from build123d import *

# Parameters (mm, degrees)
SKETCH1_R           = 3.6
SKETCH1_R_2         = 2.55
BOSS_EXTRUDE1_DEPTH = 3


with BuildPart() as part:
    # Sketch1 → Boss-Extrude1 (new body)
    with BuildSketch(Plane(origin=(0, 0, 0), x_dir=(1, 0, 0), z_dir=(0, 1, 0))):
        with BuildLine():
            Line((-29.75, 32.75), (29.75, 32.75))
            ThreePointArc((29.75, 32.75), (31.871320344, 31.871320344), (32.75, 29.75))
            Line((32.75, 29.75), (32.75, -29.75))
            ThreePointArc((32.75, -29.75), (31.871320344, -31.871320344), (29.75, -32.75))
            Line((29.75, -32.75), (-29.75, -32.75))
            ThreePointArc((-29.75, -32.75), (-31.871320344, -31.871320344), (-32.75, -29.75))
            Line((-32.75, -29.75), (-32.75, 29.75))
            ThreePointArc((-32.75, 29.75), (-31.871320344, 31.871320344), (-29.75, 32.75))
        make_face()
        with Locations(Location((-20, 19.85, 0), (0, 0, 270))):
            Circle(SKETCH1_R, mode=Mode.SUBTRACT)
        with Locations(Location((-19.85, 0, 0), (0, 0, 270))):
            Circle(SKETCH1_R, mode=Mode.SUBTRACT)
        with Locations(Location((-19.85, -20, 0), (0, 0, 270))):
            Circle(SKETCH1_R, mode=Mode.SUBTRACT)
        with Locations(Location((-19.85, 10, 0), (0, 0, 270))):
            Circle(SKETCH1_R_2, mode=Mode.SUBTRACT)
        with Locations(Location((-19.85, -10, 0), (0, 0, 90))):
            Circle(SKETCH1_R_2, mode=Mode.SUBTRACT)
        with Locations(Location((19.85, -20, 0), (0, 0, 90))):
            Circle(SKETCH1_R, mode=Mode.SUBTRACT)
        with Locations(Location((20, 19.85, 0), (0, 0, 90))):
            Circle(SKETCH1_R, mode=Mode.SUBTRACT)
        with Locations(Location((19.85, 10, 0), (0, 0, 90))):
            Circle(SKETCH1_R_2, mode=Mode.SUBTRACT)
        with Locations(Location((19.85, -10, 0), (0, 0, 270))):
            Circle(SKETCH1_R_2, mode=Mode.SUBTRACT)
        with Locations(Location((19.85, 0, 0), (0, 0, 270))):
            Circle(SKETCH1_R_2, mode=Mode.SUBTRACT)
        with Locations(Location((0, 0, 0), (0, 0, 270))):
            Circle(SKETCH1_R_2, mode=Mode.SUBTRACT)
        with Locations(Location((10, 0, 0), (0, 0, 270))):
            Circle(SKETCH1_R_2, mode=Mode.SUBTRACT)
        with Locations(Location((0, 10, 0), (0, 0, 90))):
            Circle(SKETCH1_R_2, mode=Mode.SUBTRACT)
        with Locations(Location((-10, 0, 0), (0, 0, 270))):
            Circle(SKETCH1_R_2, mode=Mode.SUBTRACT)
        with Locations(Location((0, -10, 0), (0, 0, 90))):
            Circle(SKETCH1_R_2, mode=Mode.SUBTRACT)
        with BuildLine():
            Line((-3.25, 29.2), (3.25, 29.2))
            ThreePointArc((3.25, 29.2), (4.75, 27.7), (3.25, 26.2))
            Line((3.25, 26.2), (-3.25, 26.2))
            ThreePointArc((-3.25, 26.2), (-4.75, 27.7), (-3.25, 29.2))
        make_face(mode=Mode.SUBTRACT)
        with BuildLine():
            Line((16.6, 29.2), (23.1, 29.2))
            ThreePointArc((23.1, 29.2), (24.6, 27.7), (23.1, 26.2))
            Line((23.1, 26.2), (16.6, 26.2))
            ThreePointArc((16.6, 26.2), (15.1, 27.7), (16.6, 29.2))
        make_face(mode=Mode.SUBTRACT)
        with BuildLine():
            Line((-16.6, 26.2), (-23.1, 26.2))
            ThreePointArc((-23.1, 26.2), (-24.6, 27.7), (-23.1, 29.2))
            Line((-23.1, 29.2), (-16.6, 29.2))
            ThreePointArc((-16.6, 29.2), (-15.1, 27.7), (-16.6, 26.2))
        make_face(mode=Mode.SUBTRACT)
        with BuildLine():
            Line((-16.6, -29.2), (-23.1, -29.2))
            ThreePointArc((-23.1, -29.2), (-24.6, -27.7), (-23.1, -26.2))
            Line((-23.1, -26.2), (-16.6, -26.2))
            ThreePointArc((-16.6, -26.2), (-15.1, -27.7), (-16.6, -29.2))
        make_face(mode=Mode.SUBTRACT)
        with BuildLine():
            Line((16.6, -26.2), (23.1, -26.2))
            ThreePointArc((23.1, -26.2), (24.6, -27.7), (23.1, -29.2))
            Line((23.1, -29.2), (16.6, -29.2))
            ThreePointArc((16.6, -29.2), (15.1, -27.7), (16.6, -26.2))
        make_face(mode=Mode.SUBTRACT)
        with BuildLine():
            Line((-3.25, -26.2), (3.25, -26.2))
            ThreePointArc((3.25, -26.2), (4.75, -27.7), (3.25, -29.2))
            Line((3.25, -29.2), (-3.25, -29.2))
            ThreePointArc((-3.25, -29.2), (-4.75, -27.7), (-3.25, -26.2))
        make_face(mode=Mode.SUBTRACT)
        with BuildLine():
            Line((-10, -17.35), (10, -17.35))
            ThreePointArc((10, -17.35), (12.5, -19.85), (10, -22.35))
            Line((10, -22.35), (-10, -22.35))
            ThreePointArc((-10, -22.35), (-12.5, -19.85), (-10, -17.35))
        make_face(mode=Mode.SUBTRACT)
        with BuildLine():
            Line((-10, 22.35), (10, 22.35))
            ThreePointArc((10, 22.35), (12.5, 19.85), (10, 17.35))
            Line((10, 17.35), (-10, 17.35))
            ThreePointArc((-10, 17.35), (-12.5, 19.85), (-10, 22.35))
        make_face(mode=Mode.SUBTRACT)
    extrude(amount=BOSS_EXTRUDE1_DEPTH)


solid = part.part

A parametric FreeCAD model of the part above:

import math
import FreeCAD as App
import Part
import Sketcher

V = App.Vector
Q = App.Units.Quantity

doc = App.newDocument("Part")
body = doc.addObject("PartDesign::Body", "Body")

# Sketch on XZ plane
sketch1 = doc.addObject("Sketcher::SketchObject", "Sketch")
body.addObject(sketch1)
sketch1.AttachmentSupport = (doc.XZ_Plane, [""])
sketch1.MapMode = "FlatFace"
sketch1.addGeometry([
    Part.LineSegment(V(29.8, -32.8, 0), V(-29.8, -32.8, 0)),  # 0
    Part.ArcOfCircle(Part.Circle(V(-29.8, -29.8, 0), V(0, 0, 1), 3), math.radians(180), math.radians(270)),  # 1
    Part.LineSegment(V(-32.8, -29.8, 0), V(-32.8, 29.8, 0)),  # 2
    Part.ArcOfCircle(Part.Circle(V(-29.8, 29.8, 0), V(0, 0, 1), 3), math.radians(90), math.radians(180)),  # 3
    Part.LineSegment(V(-29.8, 32.8, 0), V(29.8, 32.8, 0)),  # 4
    Part.ArcOfCircle(Part.Circle(V(29.8, 29.8, 0), V(0, 0, 1), 3), math.radians(0), math.radians(90)),  # 5
    Part.LineSegment(V(32.8, 29.8, 0), V(32.8, -29.8, 0)),  # 6
    Part.ArcOfCircle(Part.Circle(V(29.8, -29.8, 0), V(0, 0, 1), 3), math.radians(-90), math.radians(0)),  # 7
    Part.LineSegment(V(16.6, 26.2, 0), V(23.1, 26.2, 0)),  # 8
    Part.ArcOfCircle(Part.Circle(V(23.1, 27.7, 0), V(0, 0, 1), 1.5), math.radians(-90), math.radians(90)),  # 9
    Part.LineSegment(V(23.1, 29.2, 0), V(16.6, 29.2, 0)),  # 10
    Part.ArcOfCircle(Part.Circle(V(16.6, 27.7, 0), V(0, 0, 1), 1.5), math.radians(90), math.radians(270)),  # 11
    Part.Circle(V(19.9, 20, 0), V(0, 0, 1), 3.6),  # 12
    Part.Circle(V(19.9, 10, 0), V(0, 0, 1), 2.5),  # 13
    Part.Circle(V(19.9, 0, 0), V(0, 0, 1), 2.5),  # 14
    Part.Circle(V(10, 0, 0), V(0, 0, 1), 2.5),  # 15
    Part.LineSegment(V(-3.2, 26.2, 0), V(3.2, 26.2, 0)),  # 16
    Part.ArcOfCircle(Part.Circle(V(3.2, 27.7, 0), V(0, 0, 1), 1.5), math.radians(-90), math.radians(90)),  # 17
    Part.LineSegment(V(3.2, 29.2, 0), V(-3.2, 29.2, 0)),  # 18
    Part.ArcOfCircle(Part.Circle(V(-3.2, 27.7, 0), V(0, 0, 1), 1.5), math.radians(90), math.radians(270)),  # 19
    Part.LineSegment(V(-10, 17.4, 0), V(10, 17.4, 0)),  # 20
    Part.ArcOfCircle(Part.Circle(V(10, 19.9, 0), V(0, 0, 1), 2.5), math.radians(-90), math.radians(90)),  # 21
    Part.LineSegment(V(10, 22.4, 0), V(-10, 22.4, 0)),  # 22
    Part.ArcOfCircle(Part.Circle(V(-10, 19.9, 0), V(0, 0, 1), 2.5), math.radians(90), math.radians(270)),  # 23
    Part.LineSegment(V(-16.6, 29.2, 0), V(-23.1, 29.2, 0)),  # 24
    Part.ArcOfCircle(Part.Circle(V(-23.1, 27.7, 0), V(0, 0, 1), 1.5), math.radians(90), math.radians(270)),  # 25
    Part.LineSegment(V(-23.1, 26.2, 0), V(-16.6, 26.2, 0)),  # 26
    Part.ArcOfCircle(Part.Circle(V(-16.6, 27.7, 0), V(0, 0, 1), 1.5), math.radians(-90), math.radians(90)),  # 27
    Part.Circle(V(-19.9, 20, 0), V(0, 0, 1), 3.6),  # 28
    Part.Circle(V(0, 10, 0), V(0, 0, 1), 2.5),  # 29
    Part.Circle(V(0, 0, 0), V(0, 0, 1), 2.5),  # 30
    Part.Circle(V(-10, 0, 0), V(0, 0, 1), 2.5),  # 31
    Part.Circle(V(-19.9, 10, 0), V(0, 0, 1), 2.5),  # 32
    Part.Circle(V(-19.9, 0, 0), V(0, 0, 1), 3.6),  # 33
    Part.Circle(V(19.9, -10, 0), V(0, 0, 1), 2.5),  # 34
    Part.Circle(V(20, -19.9, 0), V(0, 0, 1), 3.6),  # 35
    Part.LineSegment(V(16.6, -29.2, 0), V(23.1, -29.2, 0)),  # 36
    Part.ArcOfCircle(Part.Circle(V(23.1, -27.7, 0), V(0, 0, 1), 1.5), math.radians(-90), math.radians(90)),  # 37
    Part.LineSegment(V(23.1, -26.2, 0), V(16.6, -26.2, 0)),  # 38
    Part.ArcOfCircle(Part.Circle(V(16.6, -27.7, 0), V(0, 0, 1), 1.5), math.radians(90), math.radians(270)),  # 39
    Part.Circle(V(0, -10, 0), V(0, 0, 1), 2.5),  # 40
    Part.Circle(V(-19.9, -10, 0), V(0, 0, 1), 2.5),  # 41
    Part.LineSegment(V(-10, -22.4, 0), V(10, -22.4, 0)),  # 42
    Part.ArcOfCircle(Part.Circle(V(10, -19.9, 0), V(0, 0, 1), 2.5), math.radians(-90), math.radians(90)),  # 43
    Part.LineSegment(V(10, -17.4, 0), V(-10, -17.4, 0)),  # 44
    Part.ArcOfCircle(Part.Circle(V(-10, -19.9, 0), V(0, 0, 1), 2.5), math.radians(90), math.radians(270)),  # 45
    Part.LineSegment(V(-3.2, -29.2, 0), V(3.2, -29.2, 0)),  # 46
    Part.ArcOfCircle(Part.Circle(V(3.2, -27.7, 0), V(0, 0, 1), 1.5), math.radians(-90), math.radians(90)),  # 47
    Part.LineSegment(V(3.2, -26.2, 0), V(-3.2, -26.2, 0)),  # 48
    Part.ArcOfCircle(Part.Circle(V(-3.2, -27.7, 0), V(0, 0, 1), 1.5), math.radians(90), math.radians(270)),  # 49
    Part.Circle(V(-20, -19.9, 0), V(0, 0, 1), 3.6),  # 50
    Part.LineSegment(V(-16.6, -26.2, 0), V(-23.1, -26.2, 0)),  # 51
    Part.ArcOfCircle(Part.Circle(V(-23.1, -27.7, 0), V(0, 0, 1), 1.5), math.radians(90), math.radians(270)),  # 52
    Part.LineSegment(V(-23.1, -29.2, 0), V(-16.6, -29.2, 0)),  # 53
    Part.ArcOfCircle(Part.Circle(V(-16.6, -27.7, 0), V(0, 0, 1), 1.5), math.radians(-90), math.radians(90)),  # 54
], False)
sketch1.addConstraint([
    Sketcher.Constraint("Tangent", 0, 2, 1, 2),
    Sketcher.Constraint("Tangent", 1, 1, 2, 1),
    Sketcher.Constraint("Tangent", 2, 2, 3, 2),
    Sketcher.Constraint("Tangent", 3, 1, 4, 1),
    Sketcher.Constraint("Tangent", 4, 2, 5, 2),
    Sketcher.Constraint("Tangent", 5, 1, 6, 1),
    Sketcher.Constraint("Tangent", 6, 2, 7, 2),
    Sketcher.Constraint("Tangent", 7, 1, 0, 1),
    Sketcher.Constraint("Tangent", 8, 2, 9, 1),
    Sketcher.Constraint("Tangent", 9, 2, 10, 1),
    Sketcher.Constraint("Tangent", 10, 2, 11, 1),
    Sketcher.Constraint("Tangent", 11, 2, 8, 1),
    Sketcher.Constraint("Tangent", 16, 2, 17, 1),
    Sketcher.Constraint("Tangent", 17, 2, 18, 1),
    Sketcher.Constraint("Tangent", 18, 2, 19, 1),
    Sketcher.Constraint("Tangent", 19, 2, 16, 1),
    Sketcher.Constraint("Tangent", 20, 2, 21, 1),
    Sketcher.Constraint("Tangent", 21, 2, 22, 1),
    Sketcher.Constraint("Tangent", 22, 2, 23, 1),
    Sketcher.Constraint("Tangent", 23, 2, 20, 1),
    Sketcher.Constraint("Tangent", 24, 2, 25, 1),
    Sketcher.Constraint("Tangent", 25, 2, 26, 1),
    Sketcher.Constraint("Tangent", 26, 2, 27, 1),
    Sketcher.Constraint("Tangent", 27, 2, 24, 1),
    Sketcher.Constraint("Tangent", 36, 2, 37, 1),
    Sketcher.Constraint("Tangent", 37, 2, 38, 1),
    Sketcher.Constraint("Tangent", 38, 2, 39, 1),
    Sketcher.Constraint("Tangent", 39, 2, 36, 1),
    Sketcher.Constraint("Tangent", 42, 2, 43, 1),
    Sketcher.Constraint("Tangent", 43, 2, 44, 1),
    Sketcher.Constraint("Tangent", 44, 2, 45, 1),
    Sketcher.Constraint("Tangent", 45, 2, 42, 1),
    Sketcher.Constraint("Tangent", 46, 2, 47, 1),
    Sketcher.Constraint("Tangent", 47, 2, 48, 1),
    Sketcher.Constraint("Tangent", 48, 2, 49, 1),
    Sketcher.Constraint("Tangent", 49, 2, 46, 1),
    Sketcher.Constraint("Tangent", 51, 2, 52, 1),
    Sketcher.Constraint("Tangent", 52, 2, 53, 1),
    Sketcher.Constraint("Tangent", 53, 2, 54, 1),
    Sketcher.Constraint("Tangent", 54, 2, 51, 1),
    Sketcher.Constraint("Horizontal", 0),
    Sketcher.Constraint("Vertical", 2),
    Sketcher.Constraint("Horizontal", 4),
    Sketcher.Constraint("Vertical", 6),
    Sketcher.Constraint("Horizontal", 8),
    Sketcher.Constraint("Horizontal", 10),
    Sketcher.Constraint("Horizontal", 16),
    Sketcher.Constraint("Horizontal", 18),
    Sketcher.Constraint("Horizontal", 20),
    Sketcher.Constraint("Horizontal", 22),
    Sketcher.Constraint("Horizontal", 24),
    Sketcher.Constraint("Horizontal", 26),
    Sketcher.Constraint("Horizontal", 36),
    Sketcher.Constraint("Horizontal", 38),
    Sketcher.Constraint("Horizontal", 42),
    Sketcher.Constraint("Horizontal", 44),
    Sketcher.Constraint("Horizontal", 46),
    Sketcher.Constraint("Horizontal", 48),
    Sketcher.Constraint("Horizontal", 51),
    Sketcher.Constraint("Horizontal", 53),
    Sketcher.Constraint("Coincident", 30, 3, -1, 1),
    Sketcher.Constraint("Equal", 1, 3),
    Sketcher.Constraint("Equal", 3, 5),
    Sketcher.Constraint("Equal", 5, 7),
    Sketcher.Constraint("Equal", 13, 14),
    Sketcher.Constraint("Equal", 14, 15),
    Sketcher.Constraint("Equal", 11, 17),
    Sketcher.Constraint("Equal", 19, 25),
    Sketcher.Constraint("Equal", 12, 28),
    Sketcher.Constraint("Equal", 15, 29),
    Sketcher.Constraint("Equal", 29, 30),
    Sketcher.Constraint("Equal", 30, 31),
    Sketcher.Constraint("Equal", 31, 32),
    Sketcher.Constraint("Equal", 28, 33),
    Sketcher.Constraint("Equal", 32, 34),
    Sketcher.Constraint("Equal", 33, 35),
    Sketcher.Constraint("Equal", 27, 37),
    Sketcher.Constraint("Equal", 34, 40),
    Sketcher.Constraint("Equal", 40, 41),
    Sketcher.Constraint("Equal", 23, 43),
    Sketcher.Constraint("Equal", 39, 47),
    Sketcher.Constraint("Equal", 35, 50),
    Sketcher.Constraint("Equal", 49, 52),
    Sketcher.Constraint("Symmetric", 1, 3, 5, 3, -1, 1),
    Sketcher.Constraint("Symmetric", 15, 3, 31, 3, -1, 1),
    Sketcher.Constraint("Symmetric", 14, 3, 33, 3, -1, 1),
    Sketcher.Constraint("Symmetric", 32, 3, 34, 3, -1, 1),
    Sketcher.Constraint("Symmetric", 25, 3, 37, 3, -1, 1),
    Sketcher.Constraint("Symmetric", 29, 3, 40, 3, -1, 1),
    Sketcher.Constraint("Symmetric", 13, 3, 41, 3, -1, 1),
    Sketcher.Constraint("Symmetric", 23, 3, 43, 3, -1, 1),
    Sketcher.Constraint("Symmetric", 19, 3, 47, 3, -1, 1),
    Sketcher.Constraint("Symmetric", 9, 3, 52, 3, -1, 1),
    Sketcher.Constraint("Symmetric", 9, 3, 25, 3, -2),
    Sketcher.Constraint("Symmetric", 12, 3, 28, 3, -2),
    Sketcher.Constraint("Symmetric", 13, 3, 32, 3, -2),
    Sketcher.Constraint("Symmetric", 35, 3, 50, 3, -2),
    Sketcher.Constraint("PointOnObject", 14, 3, -1),
    Sketcher.Constraint("PointOnObject", 15, 3, -1),
    Sketcher.Constraint("PointOnObject", 29, 3, -2),
    Sketcher.Constraint("Horizontal", 11, 3, 17, 3),
    Sketcher.Constraint("Horizontal", 13, 3, 29, 3),
    Sketcher.Constraint("Horizontal", 35, 3, 43, 3),
    Sketcher.Constraint("Vertical", 12, 3, 13, 3),
    Sketcher.Constraint("Vertical", 13, 3, 14, 3),
    Sketcher.Constraint("Vertical", 15, 3, 21, 3),
    Sketcher.Constraint("Vertical", 23, 3, 31, 3),
    Sketcher.Constraint("Vertical", 11, 3, 39, 3),
    Sketcher.Constraint("Vertical", 31, 3, 45, 3),
    Sketcher.Constraint("Vertical", 17, 3, 47, 3),
    Sketcher.Constraint("Vertical", 19, 3, 49, 3),
    Sketcher.Constraint("Vertical", 27, 3, 54, 3),
    Sketcher.Constraint("Equal", 10, 16),
    Sketcher.Constraint("Equal", 18, 24),
    Sketcher.Constraint("Equal", 4, 2),
    Sketcher.Constraint("Radius", 1, Q("3 mm")),
    Sketcher.Constraint("Diameter", 12, Q("7.2 mm")),
    Sketcher.Constraint("Diameter", 13, Q("5.1 mm")),
    Sketcher.Constraint("Radius", 9, Q("1.5 mm")),
    Sketcher.Constraint("Radius", 21, Q("2.5 mm")),
    Sketcher.Constraint("DistanceX", 20, 1, 20, 2, Q("20 mm")),
    Sketcher.Constraint("DistanceX", 0, 2, 0, 1, Q("59.5 mm")),
    Sketcher.Constraint("DistanceX", 8, 1, 8, 2, Q("6.5 mm")),
    Sketcher.Constraint("DistanceY", -1, 1, 12, 3, Q("20 mm")),
    Sketcher.Constraint("DistanceY", -1, 1, 13, 3, Q("10 mm")),
    Sketcher.Constraint("DistanceX", -1, 1, 35, 3, Q("20 mm")),
    Sketcher.Constraint("DistanceX", -1, 1, 9, 3, Q("23.1 mm")),
    Sketcher.Constraint("DistanceY", -1, 1, 9, 3, Q("27.7 mm")),
    Sketcher.Constraint("DistanceX", -1, 1, 12, 3, Q("19.85 mm")),
    Sketcher.Constraint("DistanceY", -1, 1, 21, 3, Q("19.85 mm")),
])
pad1 = doc.addObject("PartDesign::Pad", "Pad")
body.addObject(pad1)
pad1.Profile = sketch1
pad1.Length = 3
pad1.Reversed = True

doc.recompute()
